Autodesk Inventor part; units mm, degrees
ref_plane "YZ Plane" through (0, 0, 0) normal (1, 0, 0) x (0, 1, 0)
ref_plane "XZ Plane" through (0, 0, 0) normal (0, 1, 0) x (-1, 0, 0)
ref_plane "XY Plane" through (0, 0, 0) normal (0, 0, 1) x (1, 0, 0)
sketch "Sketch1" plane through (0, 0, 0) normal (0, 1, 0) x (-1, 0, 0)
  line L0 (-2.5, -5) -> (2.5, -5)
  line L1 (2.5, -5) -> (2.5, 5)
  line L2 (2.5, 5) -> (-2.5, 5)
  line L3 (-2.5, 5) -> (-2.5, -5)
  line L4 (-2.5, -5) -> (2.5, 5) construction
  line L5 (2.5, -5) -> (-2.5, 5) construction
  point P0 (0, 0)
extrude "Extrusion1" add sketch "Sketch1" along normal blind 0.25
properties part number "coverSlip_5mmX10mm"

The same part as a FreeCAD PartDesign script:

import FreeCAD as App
import Part
import Sketcher

V = App.Vector


def add_polygon(sketch, points):
    """Adds a closed chain of lines whose ends are joined by coincident constraints."""
    first, n = sketch.GeometryCount, len(points)
    for a, b in zip(points, points[1:] + points[:1]):
        sketch.addGeometry(Part.LineSegment(App.Vector(*a, 0), App.Vector(*b, 0)), False)
    for i in range(n):
        sketch.addConstraint(Sketcher.Constraint("Coincident", first + i, 2, first + (i + 1) % n, 1))

doc = App.newDocument("Part")
body = doc.addObject("PartDesign::Body", "Body")

# Sketch on XZ plane
sketch1 = doc.addObject("Sketcher::SketchObject", "Sketch")
body.addObject(sketch1)
sketch1.AttachmentSupport = (doc.XZ_Plane, [""])
sketch1.MapMode = "FlatFace"
add_polygon(sketch1, [(2, 5), (2, -5), (-2, -5), (-2, 5)])  # lines 0-3
sketch1.addConstraint([
    Sketcher.Constraint("Vertical", 0),
    Sketcher.Constraint("Horizontal", 1),
    Sketcher.Constraint("Vertical", 2),
    Sketcher.Constraint("Horizontal", 3),
    Sketcher.Constraint("Symmetric", 0, 2, 2, 2, -1, 1),
    Sketcher.Constraint("DistanceX", 1, 2, 1, 1, 5.0),
    Sketcher.Constraint("DistanceY", 0, 2, 0, 1, 10.0),
])
pad1 = doc.addObject("PartDesign::Pad", "Pad")
body.addObject(pad1)
pad1.Profile = sketch1
pad1.Length = 0.25
pad1.Reversed = True

doc.recompute()
